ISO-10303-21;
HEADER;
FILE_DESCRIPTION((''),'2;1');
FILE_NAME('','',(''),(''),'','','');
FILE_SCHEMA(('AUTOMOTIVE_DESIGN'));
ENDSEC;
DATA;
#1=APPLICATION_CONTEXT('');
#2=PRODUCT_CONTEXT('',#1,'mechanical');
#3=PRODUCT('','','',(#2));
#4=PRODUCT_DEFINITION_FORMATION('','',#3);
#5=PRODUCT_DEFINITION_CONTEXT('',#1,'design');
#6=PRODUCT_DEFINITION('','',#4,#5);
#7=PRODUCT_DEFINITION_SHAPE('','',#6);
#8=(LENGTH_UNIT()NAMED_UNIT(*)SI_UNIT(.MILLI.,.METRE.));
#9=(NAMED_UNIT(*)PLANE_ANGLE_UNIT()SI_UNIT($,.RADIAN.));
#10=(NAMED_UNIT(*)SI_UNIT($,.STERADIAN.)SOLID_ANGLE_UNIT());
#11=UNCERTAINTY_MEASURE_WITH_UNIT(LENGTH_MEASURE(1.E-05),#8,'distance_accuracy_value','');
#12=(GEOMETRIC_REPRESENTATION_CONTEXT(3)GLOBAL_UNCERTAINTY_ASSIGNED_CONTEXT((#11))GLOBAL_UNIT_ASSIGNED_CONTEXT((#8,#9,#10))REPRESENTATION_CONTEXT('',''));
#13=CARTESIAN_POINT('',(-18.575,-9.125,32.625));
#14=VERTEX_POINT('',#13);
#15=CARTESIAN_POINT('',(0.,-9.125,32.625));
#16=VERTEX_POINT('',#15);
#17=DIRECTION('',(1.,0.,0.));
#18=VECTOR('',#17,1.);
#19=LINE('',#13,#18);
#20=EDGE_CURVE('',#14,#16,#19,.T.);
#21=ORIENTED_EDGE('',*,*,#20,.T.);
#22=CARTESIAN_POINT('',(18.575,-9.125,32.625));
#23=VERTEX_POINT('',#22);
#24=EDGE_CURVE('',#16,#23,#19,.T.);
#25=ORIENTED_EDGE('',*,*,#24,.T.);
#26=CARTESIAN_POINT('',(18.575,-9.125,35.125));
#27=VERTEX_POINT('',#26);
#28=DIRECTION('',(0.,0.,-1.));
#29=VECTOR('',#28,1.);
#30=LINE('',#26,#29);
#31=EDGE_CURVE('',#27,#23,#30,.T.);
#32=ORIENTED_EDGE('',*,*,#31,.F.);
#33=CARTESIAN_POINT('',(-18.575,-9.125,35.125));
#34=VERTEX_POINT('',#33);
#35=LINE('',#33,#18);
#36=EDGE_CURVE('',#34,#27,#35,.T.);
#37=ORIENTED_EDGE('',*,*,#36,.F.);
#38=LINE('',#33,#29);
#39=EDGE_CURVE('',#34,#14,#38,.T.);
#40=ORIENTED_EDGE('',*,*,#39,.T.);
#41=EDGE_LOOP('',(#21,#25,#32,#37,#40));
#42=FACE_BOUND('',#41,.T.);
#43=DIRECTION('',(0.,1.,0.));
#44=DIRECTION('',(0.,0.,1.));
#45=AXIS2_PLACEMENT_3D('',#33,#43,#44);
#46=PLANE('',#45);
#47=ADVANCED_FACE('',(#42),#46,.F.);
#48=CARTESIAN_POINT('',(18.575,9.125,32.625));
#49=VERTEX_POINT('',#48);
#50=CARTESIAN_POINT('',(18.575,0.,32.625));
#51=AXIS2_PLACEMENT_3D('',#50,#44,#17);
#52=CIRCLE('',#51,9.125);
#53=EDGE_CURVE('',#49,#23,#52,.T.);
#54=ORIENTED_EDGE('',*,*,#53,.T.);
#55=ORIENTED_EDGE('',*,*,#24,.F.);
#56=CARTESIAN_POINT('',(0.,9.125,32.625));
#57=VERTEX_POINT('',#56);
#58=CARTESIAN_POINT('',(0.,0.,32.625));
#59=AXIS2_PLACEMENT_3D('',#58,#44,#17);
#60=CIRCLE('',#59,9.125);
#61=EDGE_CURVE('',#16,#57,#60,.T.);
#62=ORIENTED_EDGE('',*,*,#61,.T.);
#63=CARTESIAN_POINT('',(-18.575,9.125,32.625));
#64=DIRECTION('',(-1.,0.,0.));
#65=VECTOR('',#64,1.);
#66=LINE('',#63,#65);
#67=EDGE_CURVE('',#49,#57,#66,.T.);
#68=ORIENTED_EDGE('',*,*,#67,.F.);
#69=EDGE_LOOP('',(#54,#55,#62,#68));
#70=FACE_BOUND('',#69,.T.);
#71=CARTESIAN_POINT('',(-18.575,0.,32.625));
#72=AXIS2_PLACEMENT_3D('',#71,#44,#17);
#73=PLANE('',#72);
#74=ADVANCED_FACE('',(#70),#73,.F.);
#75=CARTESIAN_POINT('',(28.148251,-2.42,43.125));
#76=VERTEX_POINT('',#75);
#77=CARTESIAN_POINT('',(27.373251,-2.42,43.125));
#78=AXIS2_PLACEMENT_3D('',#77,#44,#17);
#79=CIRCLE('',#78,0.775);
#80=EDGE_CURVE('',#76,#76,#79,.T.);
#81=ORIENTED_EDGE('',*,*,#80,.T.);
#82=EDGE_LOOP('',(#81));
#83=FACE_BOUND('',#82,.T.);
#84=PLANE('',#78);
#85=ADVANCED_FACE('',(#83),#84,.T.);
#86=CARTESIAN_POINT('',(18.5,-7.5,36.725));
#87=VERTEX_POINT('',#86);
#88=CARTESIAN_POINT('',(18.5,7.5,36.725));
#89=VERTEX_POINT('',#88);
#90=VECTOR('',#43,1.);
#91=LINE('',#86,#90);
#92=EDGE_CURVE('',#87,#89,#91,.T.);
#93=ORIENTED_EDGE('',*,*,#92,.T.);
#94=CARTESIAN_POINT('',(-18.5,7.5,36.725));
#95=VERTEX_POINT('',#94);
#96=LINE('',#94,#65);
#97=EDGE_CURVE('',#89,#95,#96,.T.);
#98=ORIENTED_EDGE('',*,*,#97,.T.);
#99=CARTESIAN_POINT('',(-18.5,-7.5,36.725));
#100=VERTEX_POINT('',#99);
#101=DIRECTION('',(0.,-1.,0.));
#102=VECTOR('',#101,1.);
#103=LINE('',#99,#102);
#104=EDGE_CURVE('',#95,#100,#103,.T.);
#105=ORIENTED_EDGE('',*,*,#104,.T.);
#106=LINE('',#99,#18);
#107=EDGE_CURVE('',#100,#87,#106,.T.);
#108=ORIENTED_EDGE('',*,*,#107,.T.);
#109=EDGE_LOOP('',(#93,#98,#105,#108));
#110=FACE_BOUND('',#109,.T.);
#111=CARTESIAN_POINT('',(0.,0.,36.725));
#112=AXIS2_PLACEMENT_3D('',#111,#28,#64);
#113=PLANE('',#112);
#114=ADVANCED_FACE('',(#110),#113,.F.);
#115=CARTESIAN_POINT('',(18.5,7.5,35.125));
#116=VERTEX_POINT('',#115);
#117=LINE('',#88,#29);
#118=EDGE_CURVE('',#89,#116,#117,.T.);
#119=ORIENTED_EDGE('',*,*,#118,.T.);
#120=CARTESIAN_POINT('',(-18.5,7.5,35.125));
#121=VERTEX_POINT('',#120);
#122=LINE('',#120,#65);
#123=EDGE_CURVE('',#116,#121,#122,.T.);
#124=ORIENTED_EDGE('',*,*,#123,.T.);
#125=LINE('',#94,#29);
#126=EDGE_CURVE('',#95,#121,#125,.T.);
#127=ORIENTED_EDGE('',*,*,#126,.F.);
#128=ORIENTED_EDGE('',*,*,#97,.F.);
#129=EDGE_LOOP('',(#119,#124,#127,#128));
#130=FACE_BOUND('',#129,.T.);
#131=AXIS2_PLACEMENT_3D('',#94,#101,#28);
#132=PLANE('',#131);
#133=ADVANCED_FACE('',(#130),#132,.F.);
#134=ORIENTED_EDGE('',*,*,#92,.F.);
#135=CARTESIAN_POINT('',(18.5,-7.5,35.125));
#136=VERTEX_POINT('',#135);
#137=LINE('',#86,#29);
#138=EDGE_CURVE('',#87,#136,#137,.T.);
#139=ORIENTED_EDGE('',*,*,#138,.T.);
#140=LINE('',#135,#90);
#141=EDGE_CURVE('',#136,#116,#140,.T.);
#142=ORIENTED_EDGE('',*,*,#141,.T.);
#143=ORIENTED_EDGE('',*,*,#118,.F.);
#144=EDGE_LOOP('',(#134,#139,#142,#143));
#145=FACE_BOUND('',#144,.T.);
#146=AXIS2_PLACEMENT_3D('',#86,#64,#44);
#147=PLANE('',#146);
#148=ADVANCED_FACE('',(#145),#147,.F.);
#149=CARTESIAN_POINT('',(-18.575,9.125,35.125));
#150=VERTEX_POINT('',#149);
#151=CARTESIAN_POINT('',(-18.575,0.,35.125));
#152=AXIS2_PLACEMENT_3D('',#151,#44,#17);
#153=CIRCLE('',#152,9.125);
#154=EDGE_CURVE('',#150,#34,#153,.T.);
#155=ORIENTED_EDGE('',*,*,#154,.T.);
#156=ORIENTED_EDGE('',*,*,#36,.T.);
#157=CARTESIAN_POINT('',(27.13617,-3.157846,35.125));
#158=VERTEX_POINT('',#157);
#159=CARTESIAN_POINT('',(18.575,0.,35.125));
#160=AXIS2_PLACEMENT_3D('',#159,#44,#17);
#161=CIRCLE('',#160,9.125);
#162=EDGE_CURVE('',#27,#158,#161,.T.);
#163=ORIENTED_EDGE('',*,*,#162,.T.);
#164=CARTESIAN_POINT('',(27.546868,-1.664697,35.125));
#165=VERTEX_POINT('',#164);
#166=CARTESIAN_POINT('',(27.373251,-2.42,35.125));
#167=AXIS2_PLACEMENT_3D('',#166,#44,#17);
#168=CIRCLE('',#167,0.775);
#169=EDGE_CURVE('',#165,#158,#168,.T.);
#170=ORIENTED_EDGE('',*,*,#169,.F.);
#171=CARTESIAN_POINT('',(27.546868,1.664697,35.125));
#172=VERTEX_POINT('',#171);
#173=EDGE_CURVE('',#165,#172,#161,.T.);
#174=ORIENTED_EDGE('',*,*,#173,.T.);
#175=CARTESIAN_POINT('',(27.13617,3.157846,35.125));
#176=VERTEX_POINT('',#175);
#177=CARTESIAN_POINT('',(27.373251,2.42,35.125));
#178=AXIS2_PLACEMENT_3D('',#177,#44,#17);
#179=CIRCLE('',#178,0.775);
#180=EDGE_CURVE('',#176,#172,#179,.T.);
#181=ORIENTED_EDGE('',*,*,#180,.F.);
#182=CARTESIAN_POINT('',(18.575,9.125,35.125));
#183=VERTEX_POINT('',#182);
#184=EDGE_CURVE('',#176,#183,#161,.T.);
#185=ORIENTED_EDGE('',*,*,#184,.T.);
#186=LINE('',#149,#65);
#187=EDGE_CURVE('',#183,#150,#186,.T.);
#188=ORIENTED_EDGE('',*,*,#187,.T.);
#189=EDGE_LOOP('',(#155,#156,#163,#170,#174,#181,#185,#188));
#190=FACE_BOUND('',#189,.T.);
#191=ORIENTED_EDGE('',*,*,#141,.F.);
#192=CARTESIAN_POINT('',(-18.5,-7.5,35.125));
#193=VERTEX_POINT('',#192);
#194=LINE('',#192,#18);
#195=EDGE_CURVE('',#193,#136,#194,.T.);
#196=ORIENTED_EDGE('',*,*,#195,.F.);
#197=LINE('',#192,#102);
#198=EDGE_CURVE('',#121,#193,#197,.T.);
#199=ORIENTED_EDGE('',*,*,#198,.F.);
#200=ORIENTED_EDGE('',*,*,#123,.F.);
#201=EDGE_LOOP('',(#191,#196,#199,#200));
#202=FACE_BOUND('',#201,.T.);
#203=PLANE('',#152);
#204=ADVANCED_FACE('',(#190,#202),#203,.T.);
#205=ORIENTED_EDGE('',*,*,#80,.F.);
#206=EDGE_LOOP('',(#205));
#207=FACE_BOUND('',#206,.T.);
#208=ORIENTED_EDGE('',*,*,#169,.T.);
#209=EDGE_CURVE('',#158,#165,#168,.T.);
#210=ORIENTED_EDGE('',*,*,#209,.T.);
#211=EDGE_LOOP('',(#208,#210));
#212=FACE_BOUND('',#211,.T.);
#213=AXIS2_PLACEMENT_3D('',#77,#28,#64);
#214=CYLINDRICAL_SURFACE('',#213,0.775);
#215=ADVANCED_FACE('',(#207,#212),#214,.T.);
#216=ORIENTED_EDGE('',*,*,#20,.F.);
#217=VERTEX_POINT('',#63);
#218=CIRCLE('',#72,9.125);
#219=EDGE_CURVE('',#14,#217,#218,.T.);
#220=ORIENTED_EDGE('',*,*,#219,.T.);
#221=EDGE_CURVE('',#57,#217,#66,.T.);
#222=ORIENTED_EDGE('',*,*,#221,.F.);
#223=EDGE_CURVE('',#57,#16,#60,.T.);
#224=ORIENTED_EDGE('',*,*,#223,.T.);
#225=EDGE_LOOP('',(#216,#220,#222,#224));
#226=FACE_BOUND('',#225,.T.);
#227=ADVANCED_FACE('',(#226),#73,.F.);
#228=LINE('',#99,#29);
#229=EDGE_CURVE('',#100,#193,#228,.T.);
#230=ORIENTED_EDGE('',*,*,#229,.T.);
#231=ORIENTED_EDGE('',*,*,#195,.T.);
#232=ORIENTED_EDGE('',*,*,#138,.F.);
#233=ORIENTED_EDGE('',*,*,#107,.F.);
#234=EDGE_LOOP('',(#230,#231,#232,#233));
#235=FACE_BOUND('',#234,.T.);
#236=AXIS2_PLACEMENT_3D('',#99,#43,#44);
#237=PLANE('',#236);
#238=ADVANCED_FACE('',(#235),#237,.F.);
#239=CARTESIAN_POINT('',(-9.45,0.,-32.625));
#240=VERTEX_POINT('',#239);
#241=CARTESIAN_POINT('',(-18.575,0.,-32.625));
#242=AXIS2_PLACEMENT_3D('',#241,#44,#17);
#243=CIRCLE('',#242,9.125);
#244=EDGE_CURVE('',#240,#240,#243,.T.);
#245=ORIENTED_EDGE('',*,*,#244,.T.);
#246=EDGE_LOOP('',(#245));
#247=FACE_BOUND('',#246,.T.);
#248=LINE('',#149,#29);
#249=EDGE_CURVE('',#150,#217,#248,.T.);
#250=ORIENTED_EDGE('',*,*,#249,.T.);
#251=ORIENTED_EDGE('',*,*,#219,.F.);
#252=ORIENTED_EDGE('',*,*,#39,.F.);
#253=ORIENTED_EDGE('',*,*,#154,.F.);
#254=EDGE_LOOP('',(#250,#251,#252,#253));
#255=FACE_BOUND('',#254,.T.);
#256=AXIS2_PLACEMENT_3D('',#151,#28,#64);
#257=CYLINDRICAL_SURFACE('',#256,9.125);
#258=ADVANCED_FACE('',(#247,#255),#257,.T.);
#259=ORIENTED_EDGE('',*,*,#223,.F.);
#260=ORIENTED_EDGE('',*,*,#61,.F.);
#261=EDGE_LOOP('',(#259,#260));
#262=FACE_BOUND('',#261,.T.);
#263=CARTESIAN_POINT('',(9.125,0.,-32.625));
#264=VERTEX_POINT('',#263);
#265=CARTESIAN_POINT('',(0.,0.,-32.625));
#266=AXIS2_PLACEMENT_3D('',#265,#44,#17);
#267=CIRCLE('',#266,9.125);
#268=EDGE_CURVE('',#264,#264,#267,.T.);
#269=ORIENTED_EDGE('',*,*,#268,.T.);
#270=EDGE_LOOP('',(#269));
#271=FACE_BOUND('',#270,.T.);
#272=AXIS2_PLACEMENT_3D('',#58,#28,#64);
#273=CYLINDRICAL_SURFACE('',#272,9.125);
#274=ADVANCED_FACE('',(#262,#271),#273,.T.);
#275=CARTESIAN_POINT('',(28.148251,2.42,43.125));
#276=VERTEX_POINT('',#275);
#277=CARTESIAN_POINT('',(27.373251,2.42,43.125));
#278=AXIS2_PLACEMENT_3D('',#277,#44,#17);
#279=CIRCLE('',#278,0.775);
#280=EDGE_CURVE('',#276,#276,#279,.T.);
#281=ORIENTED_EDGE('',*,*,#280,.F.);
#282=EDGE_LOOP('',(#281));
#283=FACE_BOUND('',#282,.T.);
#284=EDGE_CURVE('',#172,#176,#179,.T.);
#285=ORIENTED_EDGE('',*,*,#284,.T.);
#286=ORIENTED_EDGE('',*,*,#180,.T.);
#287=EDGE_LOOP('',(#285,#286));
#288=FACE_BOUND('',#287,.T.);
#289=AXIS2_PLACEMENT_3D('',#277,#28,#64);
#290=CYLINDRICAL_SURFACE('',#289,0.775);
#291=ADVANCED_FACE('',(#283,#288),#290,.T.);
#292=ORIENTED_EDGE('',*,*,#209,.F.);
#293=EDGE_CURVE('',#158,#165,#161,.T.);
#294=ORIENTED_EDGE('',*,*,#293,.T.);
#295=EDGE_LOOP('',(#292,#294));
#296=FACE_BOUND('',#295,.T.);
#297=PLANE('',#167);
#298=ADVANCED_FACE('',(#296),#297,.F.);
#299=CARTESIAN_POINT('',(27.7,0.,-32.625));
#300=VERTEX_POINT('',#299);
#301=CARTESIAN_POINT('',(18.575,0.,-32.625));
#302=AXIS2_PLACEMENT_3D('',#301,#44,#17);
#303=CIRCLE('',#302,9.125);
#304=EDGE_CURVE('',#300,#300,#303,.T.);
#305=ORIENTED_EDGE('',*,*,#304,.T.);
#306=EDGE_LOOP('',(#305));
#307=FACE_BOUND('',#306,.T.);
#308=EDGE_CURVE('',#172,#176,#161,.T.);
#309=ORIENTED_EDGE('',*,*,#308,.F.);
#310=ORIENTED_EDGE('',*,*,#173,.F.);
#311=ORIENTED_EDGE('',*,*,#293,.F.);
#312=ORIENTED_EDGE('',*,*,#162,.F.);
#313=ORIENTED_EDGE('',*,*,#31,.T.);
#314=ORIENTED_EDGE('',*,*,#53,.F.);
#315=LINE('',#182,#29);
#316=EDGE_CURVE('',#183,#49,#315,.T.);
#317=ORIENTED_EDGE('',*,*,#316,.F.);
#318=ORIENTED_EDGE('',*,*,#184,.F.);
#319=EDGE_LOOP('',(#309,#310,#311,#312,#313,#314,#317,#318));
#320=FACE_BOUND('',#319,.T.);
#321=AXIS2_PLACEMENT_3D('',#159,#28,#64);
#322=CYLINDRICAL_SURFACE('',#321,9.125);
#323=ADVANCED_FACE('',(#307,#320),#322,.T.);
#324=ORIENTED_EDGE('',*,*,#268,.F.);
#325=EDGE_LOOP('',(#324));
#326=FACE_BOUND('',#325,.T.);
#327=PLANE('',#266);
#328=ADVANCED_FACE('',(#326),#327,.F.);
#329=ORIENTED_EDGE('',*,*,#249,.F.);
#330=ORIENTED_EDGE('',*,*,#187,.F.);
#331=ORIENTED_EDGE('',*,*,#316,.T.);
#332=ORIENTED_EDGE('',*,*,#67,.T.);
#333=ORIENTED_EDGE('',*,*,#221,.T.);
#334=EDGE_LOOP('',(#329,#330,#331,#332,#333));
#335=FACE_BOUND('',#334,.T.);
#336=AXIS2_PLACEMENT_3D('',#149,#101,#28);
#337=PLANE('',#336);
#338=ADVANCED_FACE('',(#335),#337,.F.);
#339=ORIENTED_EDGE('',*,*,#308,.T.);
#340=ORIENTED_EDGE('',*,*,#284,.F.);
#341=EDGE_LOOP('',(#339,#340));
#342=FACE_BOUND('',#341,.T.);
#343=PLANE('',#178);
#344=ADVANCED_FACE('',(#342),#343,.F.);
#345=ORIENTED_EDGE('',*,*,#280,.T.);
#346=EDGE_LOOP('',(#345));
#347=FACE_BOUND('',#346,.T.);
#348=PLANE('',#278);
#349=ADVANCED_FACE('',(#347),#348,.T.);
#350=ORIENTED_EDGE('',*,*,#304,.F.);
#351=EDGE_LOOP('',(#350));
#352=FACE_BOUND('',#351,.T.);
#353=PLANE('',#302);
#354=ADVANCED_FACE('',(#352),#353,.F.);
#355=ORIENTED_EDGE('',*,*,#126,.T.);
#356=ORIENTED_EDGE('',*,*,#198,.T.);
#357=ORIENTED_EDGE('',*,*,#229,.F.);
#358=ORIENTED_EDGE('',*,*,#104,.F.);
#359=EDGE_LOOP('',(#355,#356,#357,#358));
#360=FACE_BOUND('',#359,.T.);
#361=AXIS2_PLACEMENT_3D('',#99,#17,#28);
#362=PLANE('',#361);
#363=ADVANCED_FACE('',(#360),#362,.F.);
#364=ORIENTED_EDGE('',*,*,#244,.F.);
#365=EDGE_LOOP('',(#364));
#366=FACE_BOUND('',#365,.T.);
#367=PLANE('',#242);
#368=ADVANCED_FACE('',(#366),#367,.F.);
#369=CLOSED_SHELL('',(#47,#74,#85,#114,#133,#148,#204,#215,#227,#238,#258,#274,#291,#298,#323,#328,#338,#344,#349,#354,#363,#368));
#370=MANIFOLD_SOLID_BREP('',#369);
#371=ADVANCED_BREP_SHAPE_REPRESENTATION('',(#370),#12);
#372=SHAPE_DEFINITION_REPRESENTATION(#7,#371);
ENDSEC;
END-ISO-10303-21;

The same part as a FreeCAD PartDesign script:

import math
import FreeCAD as App
import Part
import Sketcher
from FreeCAD import Vector


def add_polygon(sketch, points):
    """Adds a closed chain of lines whose ends are joined by coincident constraints."""
    first, n = sketch.GeometryCount, len(points)
    for a, b in zip(points, points[1:] + points[:1]):
        sketch.addGeometry(Part.LineSegment(App.Vector(*a, 0), App.Vector(*b, 0)), False)
    for i in range(n):
        sketch.addConstraint(Sketcher.Constraint("Coincident", first + i, 2, first + (i + 1) % n, 1))

doc = App.newDocument("Part")
body = doc.addObject("PartDesign::Body", "Body")

# Sketch on XY plane
sketch1 = body.newObject("Sketcher::SketchObject", "Sketch")
sketch1.AttachmentSupport = (doc.getObject("XY_Plane"), [""])
sketch1.MapMode = "FlatFace"
sketch1.addGeometry(Part.Circle(Vector(0, 0, 0), Vector(0, 0, 1), 9), False)
sketch1.addConstraint([
    Sketcher.Constraint("Coincident", 0, 3, -1, 1),
    Sketcher.Constraint("Diameter", 0, 18.25),
])
pad1 = body.newObject("PartDesign::Pad", "Pad")
pad1.Profile = sketch1
pad1.Length = 65.25
pad1.Midplane = True
body2 = doc.addObject("PartDesign::Body", "Body001")

# Sketch on XY plane
sketch2 = body2.newObject("Sketcher::SketchObject", "Sketch001")
sketch2.AttachmentSupport = (doc.getObject("XY_Plane001"), [""])
sketch2.MapMode = "FlatFace"
sketch2.addGeometry(Part.Circle(Vector(19, 0, 0), Vector(0, 0, 1), 9), False)
sketch2.addConstraint([
    Sketcher.Constraint("PointOnObject", 0, 3, -1),
    Sketcher.Constraint("Diameter", 0, 18.25),
    Sketcher.Constraint("DistanceX", -1, 1, 0, 3, 18.575),
])
pad2 = body2.newObject("PartDesign::Pad", "Pad001")
pad2.Profile = sketch2
pad2.Length = 65.25
pad2.Midplane = True
body3 = doc.addObject("PartDesign::Body", "Body002")

# Sketch on XY plane
sketch3 = body3.newObject("Sketcher::SketchObject", "Sketch002")
sketch3.AttachmentSupport = (doc.getObject("XY_Plane002"), [""])
sketch3.MapMode = "FlatFace"
sketch3.addGeometry(Part.Circle(Vector(-19, 0, 0), Vector(0, 0, 1), 9), False)
sketch3.addConstraint([
    Sketcher.Constraint("PointOnObject", 0, 3, -1),
    Sketcher.Constraint("Diameter", 0, 18.25),
    Sketcher.Constraint("DistanceX", 0, 3, -1, 1, 18.575),
])
pad3 = body3.newObject("PartDesign::Pad", "Pad002")
pad3.Profile = sketch3
pad3.Length = 65.25
pad3.Midplane = True
body.AllowCompound = True
doc.recompute()

boolean = body.newObject("PartDesign::Boolean", "Boolean")
boolean.Type = "Fuse"
boolean.addObjects([body2])
doc.recompute()

boolean2 = body.newObject("PartDesign::Boolean", "Boolean001")
boolean2.Type = "Fuse"
boolean2.addObjects([body3])

# Sketch on XY plane
sketch4 = body.newObject("Sketcher::SketchObject", "Sketch003")
sketch4.AttachmentSupport = (doc.getObject("XY_Plane"), [""])
sketch4.MapMode = "FlatFace"
sketch4.AttachmentOffset = App.Placement(Vector(0, 0, 32.625), App.Rotation())
sketch4.addGeometry([
    Part.LineSegment(Vector(19, 9, 0), Vector(-19, 9, 0)),
    Part.ArcOfCircle(Part.Circle(Vector(-19, 0, 0), Vector(0, 0, 1), 9), math.radians(90), math.radians(270)),
    Part.LineSegment(Vector(-19, -9, 0), Vector(19, -9, 0)),
    Part.ArcOfCircle(Part.Circle(Vector(19, 0, 0), Vector(0, 0, 1), 9), math.radians(-90), math.radians(90)),
], False)
sketch4.addConstraint([
    Sketcher.Constraint("Tangent", 0, 2, 1, 1),
    Sketcher.Constraint("Tangent", 1, 2, 2, 1),
    Sketcher.Constraint("Tangent", 2, 2, 3, 1),
    Sketcher.Constraint("Tangent", 3, 2, 0, 1),
    Sketcher.Constraint("Horizontal", 0),
    Sketcher.Constraint("Horizontal", 2),
    Sketcher.Constraint("Symmetric", 1, 3, 3, 3, -1, 1),
    Sketcher.Constraint("Radius", 1, 9.125),
    Sketcher.Constraint("DistanceX", 0, 2, 0, 1, 37.15),
])
pad4 = body.newObject("PartDesign::Pad", "Pad003")
pad4.Profile = sketch4
pad4.Length = 2.5

# Sketch on XY plane
sketch5 = body.newObject("Sketcher::SketchObject", "Sketch004")
sketch5.AttachmentSupport = (doc.getObject("XY_Plane"), [""])
sketch5.MapMode = "FlatFace"
sketch5.AttachmentOffset = App.Placement(Vector(0, 0, 35.125), App.Rotation())
add_polygon(sketch5, [(-18, 8), (-18, -8), (18, -8), (18, 8)])  # lines 0-3
sketch5.addConstraint([
    Sketcher.Constraint("Vertical", 0),
    Sketcher.Constraint("Horizontal", 1),
    Sketcher.Constraint("Vertical", 2),
    Sketcher.Constraint("Horizontal", 3),
    Sketcher.Constraint("Symmetric", 0, 2, 2, 2, -1, 1),
    Sketcher.Constraint("DistanceX", 1, 1, 1, 2, 37.0),
    Sketcher.Constraint("DistanceY", 0, 2, 0, 1, 15.0),
])
pad5 = body.newObject("PartDesign::Pad", "Pad004")
pad5.Profile = sketch5
pad5.Length = 1.6

# Sketch on XY plane
sketch6 = body.newObject("Sketcher::SketchObject", "Sketch005")
sketch6.AttachmentSupport = (doc.getObject("XY_Plane"), [""])
sketch6.MapMode = "FlatFace"
sketch6.AttachmentOffset = App.Placement(Vector(0, 0, 35.125), App.Rotation())
sketch6.addGeometry([
    Part.Circle(Vector(27.4, 2.4, 0), Vector(0, 0, 1), 0.8),
    Part.Circle(Vector(27.4, -2.4, 0), Vector(0, 0, 1), 0.8),
], False)
sketch6.addConstraint([
    Sketcher.Constraint("Equal", 0, 1),
    Sketcher.Constraint("Symmetric", 0, 3, 1, 3, -1),
    Sketcher.Constraint("Diameter", 0, 1.55),
    Sketcher.Constraint("DistanceY", -1, 1, 0, 3, 2.42),
    Sketcher.Constraint("DistanceX", -1, 1, 0, 3, 27.373251),
])
pad6 = body.newObject("PartDesign::Pad", "Pad005")
pad6.Profile = sketch6
pad6.Length = 8

doc.recompute()
